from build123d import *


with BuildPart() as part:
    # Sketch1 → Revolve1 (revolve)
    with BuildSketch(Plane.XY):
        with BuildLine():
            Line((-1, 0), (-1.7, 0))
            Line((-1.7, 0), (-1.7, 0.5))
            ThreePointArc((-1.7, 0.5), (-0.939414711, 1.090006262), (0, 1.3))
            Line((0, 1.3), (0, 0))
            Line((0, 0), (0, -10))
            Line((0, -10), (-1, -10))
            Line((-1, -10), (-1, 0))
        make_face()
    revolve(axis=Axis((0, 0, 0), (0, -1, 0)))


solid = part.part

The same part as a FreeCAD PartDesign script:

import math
import FreeCAD as App
import Part
import Sketcher

doc = App.newDocument("Part")
body = doc.addObject("PartDesign::Body", "Body")

# Sketch on XY plane
sketch1 = doc.addObject("Sketcher::SketchObject", "Sketch")
body.addObject(sketch1)
sketch1.AttachmentSupport = (doc.XY_Plane, [""])
sketch1.MapMode = "FlatFace"
sketch1.addGeometry([
    Part.LineSegment(App.Vector(-1.7, 0, 0), App.Vector(-1, 0, 0)),  # 0
    Part.LineSegment(App.Vector(-1, 0, 0), App.Vector(-1, -10, 0)),  # 1
    Part.LineSegment(App.Vector(-1, -10, 0), App.Vector(0, -10, 0)),  # 2
    Part.LineSegment(App.Vector(0, -10, 0), App.Vector(0, 1.3, 0)),  # 3
    Part.ArcOfCircle(Part.Circle(App.Vector(0, -0.9, 0), App.Vector(0, 0, 1), 2.2), math.radians(90), math.radians(140)),  # 4
    Part.LineSegment(App.Vector(-1.7, 0.5, 0), App.Vector(-1.7, 0, 0)),  # 5
], False)
sketch1.addConstraint([
    Sketcher.Constraint("Coincident", 0, 2, 1, 1),
    Sketcher.Constraint("Coincident", 1, 2, 2, 1),
    Sketcher.Constraint("Coincident", 2, 2, 3, 1),
    Sketcher.Constraint("Coincident", 3, 2, 4, 1),
    Sketcher.Constraint("Coincident", 4, 2, 5, 1),
    Sketcher.Constraint("Coincident", 5, 2, 0, 1),
    Sketcher.Constraint("Horizontal", 0),
    Sketcher.Constraint("Vertical", 1),
    Sketcher.Constraint("Horizontal", 2),
    Sketcher.Constraint("Vertical", 3),
    Sketcher.Constraint("Vertical", 5),
    Sketcher.Constraint("PointOnObject", 4, 3, -2),
    Sketcher.Constraint("PointOnObject", 0, 2, -1),
    Sketcher.Constraint("PointOnObject", 2, 2, -2),
    Sketcher.Constraint("DistanceX", 2, 1, 2, 2, 1.0),
    Sketcher.Constraint("DistanceY", 1, 2, 1, 1, 10.0),
    Sketcher.Constraint("DistanceX", 0, 1, 0, 2, 0.7),
    Sketcher.Constraint("DistanceY", 3, 1, 3, 2, 11.3),
    Sketcher.Constraint("DistanceY", 5, 2, 5, 1, 0.5),
])
revolution = doc.addObject("PartDesign::Revolution", "Revolution")
body.addObject(revolution)
revolution.Profile = sketch1
revolution.ReferenceAxis = (sketch1, ["V_Axis"])
revolution.Angle = 360

doc.recompute()
